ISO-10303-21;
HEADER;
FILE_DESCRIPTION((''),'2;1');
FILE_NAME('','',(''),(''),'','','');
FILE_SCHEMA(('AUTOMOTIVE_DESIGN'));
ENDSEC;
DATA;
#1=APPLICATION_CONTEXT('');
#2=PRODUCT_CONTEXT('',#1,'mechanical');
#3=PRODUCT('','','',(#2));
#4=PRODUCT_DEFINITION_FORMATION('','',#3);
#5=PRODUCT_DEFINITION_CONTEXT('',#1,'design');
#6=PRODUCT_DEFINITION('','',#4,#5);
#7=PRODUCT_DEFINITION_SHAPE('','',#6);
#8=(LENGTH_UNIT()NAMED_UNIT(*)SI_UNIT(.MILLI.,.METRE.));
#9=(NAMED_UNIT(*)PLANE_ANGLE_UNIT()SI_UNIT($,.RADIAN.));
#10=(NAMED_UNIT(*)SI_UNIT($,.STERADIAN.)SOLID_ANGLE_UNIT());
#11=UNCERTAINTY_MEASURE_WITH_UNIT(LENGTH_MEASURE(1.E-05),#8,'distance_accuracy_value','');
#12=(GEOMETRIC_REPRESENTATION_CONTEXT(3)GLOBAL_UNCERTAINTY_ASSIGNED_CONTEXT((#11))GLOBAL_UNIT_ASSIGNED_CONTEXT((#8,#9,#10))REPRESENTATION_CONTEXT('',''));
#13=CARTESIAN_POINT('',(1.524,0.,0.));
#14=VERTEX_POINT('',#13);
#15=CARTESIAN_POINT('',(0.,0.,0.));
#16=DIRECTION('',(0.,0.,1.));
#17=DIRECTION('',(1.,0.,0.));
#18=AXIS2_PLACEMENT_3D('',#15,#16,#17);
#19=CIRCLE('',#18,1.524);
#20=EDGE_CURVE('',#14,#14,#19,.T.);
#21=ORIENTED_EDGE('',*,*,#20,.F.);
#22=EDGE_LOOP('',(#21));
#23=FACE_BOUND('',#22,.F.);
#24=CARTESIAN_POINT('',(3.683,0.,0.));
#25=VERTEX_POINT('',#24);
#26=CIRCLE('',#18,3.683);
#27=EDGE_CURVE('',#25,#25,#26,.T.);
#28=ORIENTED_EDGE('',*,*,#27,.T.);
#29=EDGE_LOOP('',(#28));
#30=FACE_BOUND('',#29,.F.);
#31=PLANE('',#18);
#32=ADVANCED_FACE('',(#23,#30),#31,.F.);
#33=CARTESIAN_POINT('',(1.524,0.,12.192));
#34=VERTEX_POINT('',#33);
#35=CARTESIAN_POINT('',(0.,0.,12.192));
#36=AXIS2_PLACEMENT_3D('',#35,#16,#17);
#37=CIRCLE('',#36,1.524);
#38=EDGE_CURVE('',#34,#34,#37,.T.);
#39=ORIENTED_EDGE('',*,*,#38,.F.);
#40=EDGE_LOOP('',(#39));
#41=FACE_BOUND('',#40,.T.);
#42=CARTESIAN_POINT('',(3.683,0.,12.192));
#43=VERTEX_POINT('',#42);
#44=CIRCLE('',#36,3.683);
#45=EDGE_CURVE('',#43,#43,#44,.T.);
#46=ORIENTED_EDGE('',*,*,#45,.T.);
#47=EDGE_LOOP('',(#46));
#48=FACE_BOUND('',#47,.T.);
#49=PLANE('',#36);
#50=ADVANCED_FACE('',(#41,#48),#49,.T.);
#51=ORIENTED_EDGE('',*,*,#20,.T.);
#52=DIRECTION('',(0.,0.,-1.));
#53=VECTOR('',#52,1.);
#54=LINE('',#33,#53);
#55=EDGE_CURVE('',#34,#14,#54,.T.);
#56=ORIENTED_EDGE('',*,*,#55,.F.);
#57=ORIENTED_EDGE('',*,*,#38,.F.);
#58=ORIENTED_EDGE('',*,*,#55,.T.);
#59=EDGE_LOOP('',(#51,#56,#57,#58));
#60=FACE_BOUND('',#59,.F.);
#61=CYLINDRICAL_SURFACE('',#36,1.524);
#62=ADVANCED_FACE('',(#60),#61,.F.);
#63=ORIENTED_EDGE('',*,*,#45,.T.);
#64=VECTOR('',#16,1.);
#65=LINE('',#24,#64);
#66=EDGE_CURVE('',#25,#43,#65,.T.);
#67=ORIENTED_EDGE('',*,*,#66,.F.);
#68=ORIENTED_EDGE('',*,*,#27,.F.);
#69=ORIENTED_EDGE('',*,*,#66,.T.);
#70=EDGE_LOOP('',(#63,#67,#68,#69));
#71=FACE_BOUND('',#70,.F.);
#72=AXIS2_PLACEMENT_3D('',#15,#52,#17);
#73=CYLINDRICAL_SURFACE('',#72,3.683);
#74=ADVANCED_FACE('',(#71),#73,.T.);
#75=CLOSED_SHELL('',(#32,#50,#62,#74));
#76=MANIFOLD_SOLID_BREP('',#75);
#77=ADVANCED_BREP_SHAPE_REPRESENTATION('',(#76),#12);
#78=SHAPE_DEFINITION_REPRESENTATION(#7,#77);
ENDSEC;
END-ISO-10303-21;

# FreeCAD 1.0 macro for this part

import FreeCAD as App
import Part
import Sketcher

V = App.Vector
Q = App.Units.Quantity

doc = App.newDocument("Part")
body = doc.addObject("PartDesign::Body", "Body")

# Sketch on XY plane
sketch1 = doc.addObject("Sketcher::SketchObject", "Sketch")
body.addObject(sketch1)
sketch1.AttachmentSupport = (doc.XY_Plane, [""])
sketch1.MapMode = "FlatFace"
sketch1.addGeometry(Part.Circle(V(0, 0, 0), V(0, 0, 1), 3.7), False)
sketch1.addConstraint([
    Sketcher.Constraint("Coincident", 0, 3, -1, 1),
    Sketcher.Constraint("Diameter", 0, Q("0.29 in")),
])
pad1 = doc.addObject("PartDesign::Pad", "Pad")
body.addObject(pad1)
pad1.Profile = sketch1
pad1.Length = Q("0.48 in")

# Sketch on XY plane
sketch2 = doc.addObject("Sketcher::SketchObject", "Sketch001")
body.addObject(sketch2)
sketch2.AttachmentSupport = (doc.XY_Plane, [""])
sketch2.MapMode = "FlatFace"
sketch2.AttachmentOffset = App.Placement(V(0, 0, 0.48 * 25.4), App.Rotation())
sketch2.addGeometry(Part.Circle(V(0, 0, 0), V(0, 0, 1), 1.5), False)
sketch2.addConstraint([
    Sketcher.Constraint("Coincident", 0, 3, -1, 1),
    Sketcher.Constraint("Diameter", 0, Q("0.12 in")),
])
pocket1 = doc.addObject("PartDesign::Pocket", "Pocket")
body.addObject(pocket1)
pocket1.Profile = sketch2
pocket1.Length = Q("0.984 in")

doc.recompute()
